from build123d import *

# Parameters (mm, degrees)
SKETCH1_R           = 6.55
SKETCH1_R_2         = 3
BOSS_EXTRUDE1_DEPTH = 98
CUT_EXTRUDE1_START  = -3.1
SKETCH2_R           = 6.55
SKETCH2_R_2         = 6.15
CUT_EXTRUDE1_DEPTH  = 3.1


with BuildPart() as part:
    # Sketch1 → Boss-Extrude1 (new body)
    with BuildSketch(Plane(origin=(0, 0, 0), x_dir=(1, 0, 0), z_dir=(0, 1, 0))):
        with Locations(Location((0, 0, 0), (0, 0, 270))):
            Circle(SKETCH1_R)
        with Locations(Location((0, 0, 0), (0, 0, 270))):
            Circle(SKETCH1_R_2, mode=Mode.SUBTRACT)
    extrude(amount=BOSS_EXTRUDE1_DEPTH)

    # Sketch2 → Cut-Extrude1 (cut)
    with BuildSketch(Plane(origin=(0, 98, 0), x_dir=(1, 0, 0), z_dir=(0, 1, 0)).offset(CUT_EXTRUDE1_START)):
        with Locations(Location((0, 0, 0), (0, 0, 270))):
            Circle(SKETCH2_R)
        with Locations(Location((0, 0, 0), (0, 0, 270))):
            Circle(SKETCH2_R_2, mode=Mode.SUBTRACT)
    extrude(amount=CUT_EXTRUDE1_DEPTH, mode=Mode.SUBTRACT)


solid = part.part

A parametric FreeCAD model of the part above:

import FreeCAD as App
import Part
import Sketcher
from FreeCAD import Vector
Q = App.Units.Quantity

doc = App.newDocument("Part")
body = doc.addObject("PartDesign::Body", "Body")

# Sketch on XZ plane
sketch1 = doc.addObject("Sketcher::SketchObject", "Sketch")
body.addObject(sketch1)
sketch1.AttachmentSupport = (doc.XZ_Plane, [""])
sketch1.MapMode = "FlatFace"
sketch1.addGeometry([
    Part.Circle(Vector(0, 0, 0), Vector(0, 0, 1), 6.5),
    Part.Circle(Vector(0, 0, 0), Vector(0, 0, 1), 3),
], False)
sketch1.addConstraint([
    Sketcher.Constraint("Coincident", 0, 3, -1, 1),
    Sketcher.Constraint("Coincident", 1, 3, -1, 1),
    Sketcher.Constraint("Diameter", 1, Q("6 mm")),
    Sketcher.Constraint("Diameter", 0, Q("13.1 mm")),
])
pad1 = doc.addObject("PartDesign::Pad", "Pad")
body.addObject(pad1)
pad1.Profile = sketch1
pad1.Length = 98
pad1.Reversed = True

# Sketch on XZ plane
sketch2 = doc.addObject("Sketcher::SketchObject", "Sketch001")
body.addObject(sketch2)
sketch2.AttachmentSupport = (doc.XZ_Plane, [""])
sketch2.MapMode = "FlatFace"
sketch2.AttachmentOffset = App.Placement(Vector(0, 0, -94.9), App.Rotation())
sketch2.addGeometry([
    Part.Circle(Vector(0, 0, 0), Vector(0, 0, 1), 7),
    Part.Circle(Vector(0, 0, 0), Vector(0, 0, 1), 6),
], False)
sketch2.addConstraint([
    Sketcher.Constraint("Coincident", 0, 3, -1, 1),
    Sketcher.Constraint("Coincident", 1, 3, -1, 1),
    Sketcher.Constraint("Diameter", 0, Q("13.1 mm")),
    Sketcher.Constraint("Diameter", 1, Q("12.3 mm")),
])
pocket1 = doc.addObject("PartDesign::Pocket", "Pocket")
body.addObject(pocket1)
pocket1.Profile = sketch2
pocket1.Length = 3.1

doc.recompute()
